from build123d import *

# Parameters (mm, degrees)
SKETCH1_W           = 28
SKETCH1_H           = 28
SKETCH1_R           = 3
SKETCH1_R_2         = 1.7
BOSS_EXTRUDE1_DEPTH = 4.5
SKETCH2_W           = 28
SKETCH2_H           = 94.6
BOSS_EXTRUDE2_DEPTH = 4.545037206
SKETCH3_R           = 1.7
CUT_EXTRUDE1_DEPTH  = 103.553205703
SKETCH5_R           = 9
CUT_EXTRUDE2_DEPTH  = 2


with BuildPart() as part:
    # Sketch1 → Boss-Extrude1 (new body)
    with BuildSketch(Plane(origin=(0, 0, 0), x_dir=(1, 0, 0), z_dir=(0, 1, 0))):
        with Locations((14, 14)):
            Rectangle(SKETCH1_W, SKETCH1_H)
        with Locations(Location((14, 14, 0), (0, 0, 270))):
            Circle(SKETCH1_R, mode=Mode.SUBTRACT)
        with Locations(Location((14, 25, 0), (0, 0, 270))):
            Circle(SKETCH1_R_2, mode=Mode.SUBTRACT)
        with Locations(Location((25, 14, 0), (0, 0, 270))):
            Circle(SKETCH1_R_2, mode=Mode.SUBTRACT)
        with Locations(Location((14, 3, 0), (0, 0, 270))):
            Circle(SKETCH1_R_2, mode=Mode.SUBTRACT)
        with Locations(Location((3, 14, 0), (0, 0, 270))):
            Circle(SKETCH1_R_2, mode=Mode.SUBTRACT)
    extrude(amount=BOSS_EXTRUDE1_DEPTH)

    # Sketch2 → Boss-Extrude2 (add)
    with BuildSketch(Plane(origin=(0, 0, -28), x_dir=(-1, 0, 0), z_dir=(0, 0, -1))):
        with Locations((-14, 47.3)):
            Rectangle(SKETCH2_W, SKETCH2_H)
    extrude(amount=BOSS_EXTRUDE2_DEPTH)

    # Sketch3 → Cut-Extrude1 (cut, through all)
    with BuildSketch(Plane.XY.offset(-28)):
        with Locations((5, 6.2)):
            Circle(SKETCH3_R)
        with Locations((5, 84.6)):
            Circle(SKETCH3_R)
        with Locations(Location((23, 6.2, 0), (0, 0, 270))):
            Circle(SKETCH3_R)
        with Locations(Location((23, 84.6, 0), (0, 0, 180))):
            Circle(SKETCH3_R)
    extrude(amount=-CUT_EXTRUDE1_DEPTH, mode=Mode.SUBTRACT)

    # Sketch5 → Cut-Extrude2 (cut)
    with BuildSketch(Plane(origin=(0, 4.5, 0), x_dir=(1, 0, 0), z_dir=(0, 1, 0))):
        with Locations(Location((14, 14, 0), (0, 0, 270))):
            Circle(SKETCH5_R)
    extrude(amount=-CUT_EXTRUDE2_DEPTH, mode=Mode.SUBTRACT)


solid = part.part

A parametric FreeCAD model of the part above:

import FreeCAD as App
import Part
import Sketcher
from FreeCAD import Vector
Q = App.Units.Quantity

doc = App.newDocument("Part")
body = doc.addObject("PartDesign::Body", "Body")

# Sketch on XZ plane
sketch1 = doc.addObject("Sketcher::SketchObject", "Sketch")
body.addObject(sketch1)
sketch1.AttachmentSupport = (doc.XZ_Plane, [""])
sketch1.MapMode = "FlatFace"
sketch1.addGeometry([
    Part.LineSegment(Vector(0, -28, 0), Vector(0, 0, 0)),  # 0
    Part.LineSegment(Vector(0, 0, 0), Vector(28, 0, 0)),  # 1
    Part.LineSegment(Vector(28, 0, 0), Vector(28, -28, 0)),  # 2
    Part.LineSegment(Vector(28, -28, 0), Vector(0, -28, 0)),  # 3
    Part.Circle(Vector(14, -3, 0), Vector(0, 0, 1), 1.7),  # 4
    Part.Circle(Vector(3, -14, 0), Vector(0, 0, 1), 1.7),  # 5
    Part.Circle(Vector(14, -14, 0), Vector(0, 0, 1), 3),  # 6
    Part.Circle(Vector(25, -14, 0), Vector(0, 0, 1), 1.7),  # 7
    Part.Circle(Vector(14, -25, 0), Vector(0, 0, 1), 1.7),  # 8
], False)
sketch1.addConstraint([
    Sketcher.Constraint("Coincident", 0, 2, 1, 1),
    Sketcher.Constraint("Coincident", 1, 2, 2, 1),
    Sketcher.Constraint("Coincident", 2, 2, 3, 1),
    Sketcher.Constraint("Coincident", 3, 2, 0, 1),
    Sketcher.Constraint("Vertical", 0),
    Sketcher.Constraint("Horizontal", 1),
    Sketcher.Constraint("Vertical", 2),
    Sketcher.Constraint("Horizontal", 3),
    Sketcher.Constraint("Coincident", 0, 2, -1, 1),
    Sketcher.Constraint("Equal", 4, 5),
    Sketcher.Constraint("Equal", 5, 7),
    Sketcher.Constraint("Equal", 7, 8),
    Sketcher.Constraint("Horizontal", 5, 3, 6, 3),
    Sketcher.Constraint("Horizontal", 6, 3, 7, 3),
    Sketcher.Constraint("Vertical", 4, 3, 6, 3),
    Sketcher.Constraint("Vertical", 6, 3, 8, 3),
    Sketcher.Constraint("Equal", 3, 0),
    Sketcher.Constraint("Diameter", 6, Q("6 mm")),
    Sketcher.Constraint("Diameter", 4, Q("3.4 mm")),
    Sketcher.Constraint("DistanceX", 1, 1, 1, 2, Q("28 mm")),
    Sketcher.Constraint("DistanceX", -1, 1, 4, 3, Q("14 mm")),
    Sketcher.Constraint("DistanceY", 4, 3, -1, 1, Q("3 mm")),
    Sketcher.Constraint("DistanceX", -1, 1, 5, 3, Q("3 mm")),
    Sketcher.Constraint("DistanceY", 5, 3, -1, 1, Q("14 mm")),
    Sketcher.Constraint("DistanceX", -1, 1, 7, 3, Q("25 mm")),
    Sketcher.Constraint("DistanceY", 8, 3, -1, 1, Q("25 mm")),
])
pad1 = doc.addObject("PartDesign::Pad", "Pad")
body.addObject(pad1)
pad1.Profile = sketch1
pad1.Length = 4.5
pad1.Reversed = True

# Sketch on XY plane
sketch2 = doc.addObject("Sketcher::SketchObject", "Sketch001")
body.addObject(sketch2)
sketch2.AttachmentSupport = (doc.XY_Plane, [""])
sketch2.MapMode = "FlatFace"
sketch2.AttachmentOffset = App.Placement(Vector(0, 0, -28), App.Rotation())
sketch2.addGeometry([
    Part.LineSegment(Vector(28, 95, 0), Vector(28, 0, 0)),
    Part.LineSegment(Vector(28, 0, 0), Vector(0, 0, 0)),
    Part.LineSegment(Vector(0, 0, 0), Vector(0, 95, 0)),
    Part.LineSegment(Vector(0, 95, 0), Vector(28, 95, 0)),
], False)
sketch2.addConstraint([
    Sketcher.Constraint("Coincident", 0, 2, 1, 1),
    Sketcher.Constraint("Coincident", 1, 2, 2, 1),
    Sketcher.Constraint("Coincident", 2, 2, 3, 1),
    Sketcher.Constraint("Coincident", 3, 2, 0, 1),
    Sketcher.Constraint("Vertical", 0),
    Sketcher.Constraint("Horizontal", 1),
    Sketcher.Constraint("Vertical", 2),
    Sketcher.Constraint("Horizontal", 3),
    Sketcher.Constraint("Coincident", 1, 2, -1, 1),
    Sketcher.Constraint("DistanceX", 1, 2, 1, 1, Q("28 mm")),
    Sketcher.Constraint("DistanceY", 0, 2, 0, 1, Q("94.6 mm")),
])
pad2 = doc.addObject("PartDesign::Pad", "Pad001")
body.addObject(pad2)
pad2.Profile = sketch2
pad2.Length = 4.545037
pad2.Reversed = True

# Sketch on XY plane
sketch3 = doc.addObject("Sketcher::SketchObject", "Sketch002")
body.addObject(sketch3)
sketch3.AttachmentSupport = (doc.XY_Plane, [""])
sketch3.MapMode = "FlatFace"
sketch3.AttachmentOffset = App.Placement(Vector(0, 0, -28), App.Rotation())
sketch3.addGeometry([
    Part.Circle(Vector(5, 6.2, 0), Vector(0, 0, 1), 1.7),
    Part.Circle(Vector(5, 84.6, 0), Vector(0, 0, 1), 1.7),
    Part.Circle(Vector(23, 6.2, 0), Vector(0, 0, 1), 1.7),
    Part.Circle(Vector(23, 84.6, 0), Vector(0, 0, 1), 1.7),
], False)
sketch3.addConstraint([
    Sketcher.Constraint("Equal", 0, 1),
    Sketcher.Constraint("Equal", 1, 2),
    Sketcher.Constraint("Equal", 2, 3),
    Sketcher.Constraint("Horizontal", 0, 3, 2, 3),
    Sketcher.Constraint("Horizontal", 1, 3, 3, 3),
    Sketcher.Constraint("Vertical", 0, 3, 1, 3),
    Sketcher.Constraint("Vertical", 2, 3, 3, 3),
    Sketcher.Constraint("Diameter", 0, Q("3.4 mm")),
    Sketcher.Constraint("DistanceX", -1, 1, 0, 3, Q("5 mm")),
    Sketcher.Constraint("DistanceX", -1, 1, 2, 3, Q("23 mm")),
    Sketcher.Constraint("DistanceY", -1, 1, 0, 3, Q("6.2 mm")),
    Sketcher.Constraint("DistanceY", -1, 1, 1, 3, Q("84.6 mm")),
])
pocket1 = doc.addObject("PartDesign::Pocket", "Pocket")
body.addObject(pocket1)
pocket1.Profile = sketch3
pocket1.Type = "ThroughAll"

# Sketch on XZ plane
sketch4 = doc.addObject("Sketcher::SketchObject", "Sketch003")
body.addObject(sketch4)
sketch4.AttachmentSupport = (doc.XZ_Plane, [""])
sketch4.MapMode = "FlatFace"
sketch4.AttachmentOffset = App.Placement(Vector(0, 0, -4.5), App.Rotation())
sketch4.addGeometry(Part.Circle(Vector(14, -14, 0), Vector(0, 0, 1), 9), False)
sketch4.addConstraint([
    Sketcher.Constraint("Diameter", 0, Q("18 mm")),
    Sketcher.Constraint("DistanceX", -1, 1, 0, 3, Q("14 mm")),
    Sketcher.Constraint("DistanceY", 0, 3, -1, 1, Q("14 mm")),
])
pocket2 = doc.addObject("PartDesign::Pocket", "Pocket001")
body.addObject(pocket2)
pocket2.Profile = sketch4
pocket2.Length = 2
pocket2.Reversed = True

doc.recompute()
